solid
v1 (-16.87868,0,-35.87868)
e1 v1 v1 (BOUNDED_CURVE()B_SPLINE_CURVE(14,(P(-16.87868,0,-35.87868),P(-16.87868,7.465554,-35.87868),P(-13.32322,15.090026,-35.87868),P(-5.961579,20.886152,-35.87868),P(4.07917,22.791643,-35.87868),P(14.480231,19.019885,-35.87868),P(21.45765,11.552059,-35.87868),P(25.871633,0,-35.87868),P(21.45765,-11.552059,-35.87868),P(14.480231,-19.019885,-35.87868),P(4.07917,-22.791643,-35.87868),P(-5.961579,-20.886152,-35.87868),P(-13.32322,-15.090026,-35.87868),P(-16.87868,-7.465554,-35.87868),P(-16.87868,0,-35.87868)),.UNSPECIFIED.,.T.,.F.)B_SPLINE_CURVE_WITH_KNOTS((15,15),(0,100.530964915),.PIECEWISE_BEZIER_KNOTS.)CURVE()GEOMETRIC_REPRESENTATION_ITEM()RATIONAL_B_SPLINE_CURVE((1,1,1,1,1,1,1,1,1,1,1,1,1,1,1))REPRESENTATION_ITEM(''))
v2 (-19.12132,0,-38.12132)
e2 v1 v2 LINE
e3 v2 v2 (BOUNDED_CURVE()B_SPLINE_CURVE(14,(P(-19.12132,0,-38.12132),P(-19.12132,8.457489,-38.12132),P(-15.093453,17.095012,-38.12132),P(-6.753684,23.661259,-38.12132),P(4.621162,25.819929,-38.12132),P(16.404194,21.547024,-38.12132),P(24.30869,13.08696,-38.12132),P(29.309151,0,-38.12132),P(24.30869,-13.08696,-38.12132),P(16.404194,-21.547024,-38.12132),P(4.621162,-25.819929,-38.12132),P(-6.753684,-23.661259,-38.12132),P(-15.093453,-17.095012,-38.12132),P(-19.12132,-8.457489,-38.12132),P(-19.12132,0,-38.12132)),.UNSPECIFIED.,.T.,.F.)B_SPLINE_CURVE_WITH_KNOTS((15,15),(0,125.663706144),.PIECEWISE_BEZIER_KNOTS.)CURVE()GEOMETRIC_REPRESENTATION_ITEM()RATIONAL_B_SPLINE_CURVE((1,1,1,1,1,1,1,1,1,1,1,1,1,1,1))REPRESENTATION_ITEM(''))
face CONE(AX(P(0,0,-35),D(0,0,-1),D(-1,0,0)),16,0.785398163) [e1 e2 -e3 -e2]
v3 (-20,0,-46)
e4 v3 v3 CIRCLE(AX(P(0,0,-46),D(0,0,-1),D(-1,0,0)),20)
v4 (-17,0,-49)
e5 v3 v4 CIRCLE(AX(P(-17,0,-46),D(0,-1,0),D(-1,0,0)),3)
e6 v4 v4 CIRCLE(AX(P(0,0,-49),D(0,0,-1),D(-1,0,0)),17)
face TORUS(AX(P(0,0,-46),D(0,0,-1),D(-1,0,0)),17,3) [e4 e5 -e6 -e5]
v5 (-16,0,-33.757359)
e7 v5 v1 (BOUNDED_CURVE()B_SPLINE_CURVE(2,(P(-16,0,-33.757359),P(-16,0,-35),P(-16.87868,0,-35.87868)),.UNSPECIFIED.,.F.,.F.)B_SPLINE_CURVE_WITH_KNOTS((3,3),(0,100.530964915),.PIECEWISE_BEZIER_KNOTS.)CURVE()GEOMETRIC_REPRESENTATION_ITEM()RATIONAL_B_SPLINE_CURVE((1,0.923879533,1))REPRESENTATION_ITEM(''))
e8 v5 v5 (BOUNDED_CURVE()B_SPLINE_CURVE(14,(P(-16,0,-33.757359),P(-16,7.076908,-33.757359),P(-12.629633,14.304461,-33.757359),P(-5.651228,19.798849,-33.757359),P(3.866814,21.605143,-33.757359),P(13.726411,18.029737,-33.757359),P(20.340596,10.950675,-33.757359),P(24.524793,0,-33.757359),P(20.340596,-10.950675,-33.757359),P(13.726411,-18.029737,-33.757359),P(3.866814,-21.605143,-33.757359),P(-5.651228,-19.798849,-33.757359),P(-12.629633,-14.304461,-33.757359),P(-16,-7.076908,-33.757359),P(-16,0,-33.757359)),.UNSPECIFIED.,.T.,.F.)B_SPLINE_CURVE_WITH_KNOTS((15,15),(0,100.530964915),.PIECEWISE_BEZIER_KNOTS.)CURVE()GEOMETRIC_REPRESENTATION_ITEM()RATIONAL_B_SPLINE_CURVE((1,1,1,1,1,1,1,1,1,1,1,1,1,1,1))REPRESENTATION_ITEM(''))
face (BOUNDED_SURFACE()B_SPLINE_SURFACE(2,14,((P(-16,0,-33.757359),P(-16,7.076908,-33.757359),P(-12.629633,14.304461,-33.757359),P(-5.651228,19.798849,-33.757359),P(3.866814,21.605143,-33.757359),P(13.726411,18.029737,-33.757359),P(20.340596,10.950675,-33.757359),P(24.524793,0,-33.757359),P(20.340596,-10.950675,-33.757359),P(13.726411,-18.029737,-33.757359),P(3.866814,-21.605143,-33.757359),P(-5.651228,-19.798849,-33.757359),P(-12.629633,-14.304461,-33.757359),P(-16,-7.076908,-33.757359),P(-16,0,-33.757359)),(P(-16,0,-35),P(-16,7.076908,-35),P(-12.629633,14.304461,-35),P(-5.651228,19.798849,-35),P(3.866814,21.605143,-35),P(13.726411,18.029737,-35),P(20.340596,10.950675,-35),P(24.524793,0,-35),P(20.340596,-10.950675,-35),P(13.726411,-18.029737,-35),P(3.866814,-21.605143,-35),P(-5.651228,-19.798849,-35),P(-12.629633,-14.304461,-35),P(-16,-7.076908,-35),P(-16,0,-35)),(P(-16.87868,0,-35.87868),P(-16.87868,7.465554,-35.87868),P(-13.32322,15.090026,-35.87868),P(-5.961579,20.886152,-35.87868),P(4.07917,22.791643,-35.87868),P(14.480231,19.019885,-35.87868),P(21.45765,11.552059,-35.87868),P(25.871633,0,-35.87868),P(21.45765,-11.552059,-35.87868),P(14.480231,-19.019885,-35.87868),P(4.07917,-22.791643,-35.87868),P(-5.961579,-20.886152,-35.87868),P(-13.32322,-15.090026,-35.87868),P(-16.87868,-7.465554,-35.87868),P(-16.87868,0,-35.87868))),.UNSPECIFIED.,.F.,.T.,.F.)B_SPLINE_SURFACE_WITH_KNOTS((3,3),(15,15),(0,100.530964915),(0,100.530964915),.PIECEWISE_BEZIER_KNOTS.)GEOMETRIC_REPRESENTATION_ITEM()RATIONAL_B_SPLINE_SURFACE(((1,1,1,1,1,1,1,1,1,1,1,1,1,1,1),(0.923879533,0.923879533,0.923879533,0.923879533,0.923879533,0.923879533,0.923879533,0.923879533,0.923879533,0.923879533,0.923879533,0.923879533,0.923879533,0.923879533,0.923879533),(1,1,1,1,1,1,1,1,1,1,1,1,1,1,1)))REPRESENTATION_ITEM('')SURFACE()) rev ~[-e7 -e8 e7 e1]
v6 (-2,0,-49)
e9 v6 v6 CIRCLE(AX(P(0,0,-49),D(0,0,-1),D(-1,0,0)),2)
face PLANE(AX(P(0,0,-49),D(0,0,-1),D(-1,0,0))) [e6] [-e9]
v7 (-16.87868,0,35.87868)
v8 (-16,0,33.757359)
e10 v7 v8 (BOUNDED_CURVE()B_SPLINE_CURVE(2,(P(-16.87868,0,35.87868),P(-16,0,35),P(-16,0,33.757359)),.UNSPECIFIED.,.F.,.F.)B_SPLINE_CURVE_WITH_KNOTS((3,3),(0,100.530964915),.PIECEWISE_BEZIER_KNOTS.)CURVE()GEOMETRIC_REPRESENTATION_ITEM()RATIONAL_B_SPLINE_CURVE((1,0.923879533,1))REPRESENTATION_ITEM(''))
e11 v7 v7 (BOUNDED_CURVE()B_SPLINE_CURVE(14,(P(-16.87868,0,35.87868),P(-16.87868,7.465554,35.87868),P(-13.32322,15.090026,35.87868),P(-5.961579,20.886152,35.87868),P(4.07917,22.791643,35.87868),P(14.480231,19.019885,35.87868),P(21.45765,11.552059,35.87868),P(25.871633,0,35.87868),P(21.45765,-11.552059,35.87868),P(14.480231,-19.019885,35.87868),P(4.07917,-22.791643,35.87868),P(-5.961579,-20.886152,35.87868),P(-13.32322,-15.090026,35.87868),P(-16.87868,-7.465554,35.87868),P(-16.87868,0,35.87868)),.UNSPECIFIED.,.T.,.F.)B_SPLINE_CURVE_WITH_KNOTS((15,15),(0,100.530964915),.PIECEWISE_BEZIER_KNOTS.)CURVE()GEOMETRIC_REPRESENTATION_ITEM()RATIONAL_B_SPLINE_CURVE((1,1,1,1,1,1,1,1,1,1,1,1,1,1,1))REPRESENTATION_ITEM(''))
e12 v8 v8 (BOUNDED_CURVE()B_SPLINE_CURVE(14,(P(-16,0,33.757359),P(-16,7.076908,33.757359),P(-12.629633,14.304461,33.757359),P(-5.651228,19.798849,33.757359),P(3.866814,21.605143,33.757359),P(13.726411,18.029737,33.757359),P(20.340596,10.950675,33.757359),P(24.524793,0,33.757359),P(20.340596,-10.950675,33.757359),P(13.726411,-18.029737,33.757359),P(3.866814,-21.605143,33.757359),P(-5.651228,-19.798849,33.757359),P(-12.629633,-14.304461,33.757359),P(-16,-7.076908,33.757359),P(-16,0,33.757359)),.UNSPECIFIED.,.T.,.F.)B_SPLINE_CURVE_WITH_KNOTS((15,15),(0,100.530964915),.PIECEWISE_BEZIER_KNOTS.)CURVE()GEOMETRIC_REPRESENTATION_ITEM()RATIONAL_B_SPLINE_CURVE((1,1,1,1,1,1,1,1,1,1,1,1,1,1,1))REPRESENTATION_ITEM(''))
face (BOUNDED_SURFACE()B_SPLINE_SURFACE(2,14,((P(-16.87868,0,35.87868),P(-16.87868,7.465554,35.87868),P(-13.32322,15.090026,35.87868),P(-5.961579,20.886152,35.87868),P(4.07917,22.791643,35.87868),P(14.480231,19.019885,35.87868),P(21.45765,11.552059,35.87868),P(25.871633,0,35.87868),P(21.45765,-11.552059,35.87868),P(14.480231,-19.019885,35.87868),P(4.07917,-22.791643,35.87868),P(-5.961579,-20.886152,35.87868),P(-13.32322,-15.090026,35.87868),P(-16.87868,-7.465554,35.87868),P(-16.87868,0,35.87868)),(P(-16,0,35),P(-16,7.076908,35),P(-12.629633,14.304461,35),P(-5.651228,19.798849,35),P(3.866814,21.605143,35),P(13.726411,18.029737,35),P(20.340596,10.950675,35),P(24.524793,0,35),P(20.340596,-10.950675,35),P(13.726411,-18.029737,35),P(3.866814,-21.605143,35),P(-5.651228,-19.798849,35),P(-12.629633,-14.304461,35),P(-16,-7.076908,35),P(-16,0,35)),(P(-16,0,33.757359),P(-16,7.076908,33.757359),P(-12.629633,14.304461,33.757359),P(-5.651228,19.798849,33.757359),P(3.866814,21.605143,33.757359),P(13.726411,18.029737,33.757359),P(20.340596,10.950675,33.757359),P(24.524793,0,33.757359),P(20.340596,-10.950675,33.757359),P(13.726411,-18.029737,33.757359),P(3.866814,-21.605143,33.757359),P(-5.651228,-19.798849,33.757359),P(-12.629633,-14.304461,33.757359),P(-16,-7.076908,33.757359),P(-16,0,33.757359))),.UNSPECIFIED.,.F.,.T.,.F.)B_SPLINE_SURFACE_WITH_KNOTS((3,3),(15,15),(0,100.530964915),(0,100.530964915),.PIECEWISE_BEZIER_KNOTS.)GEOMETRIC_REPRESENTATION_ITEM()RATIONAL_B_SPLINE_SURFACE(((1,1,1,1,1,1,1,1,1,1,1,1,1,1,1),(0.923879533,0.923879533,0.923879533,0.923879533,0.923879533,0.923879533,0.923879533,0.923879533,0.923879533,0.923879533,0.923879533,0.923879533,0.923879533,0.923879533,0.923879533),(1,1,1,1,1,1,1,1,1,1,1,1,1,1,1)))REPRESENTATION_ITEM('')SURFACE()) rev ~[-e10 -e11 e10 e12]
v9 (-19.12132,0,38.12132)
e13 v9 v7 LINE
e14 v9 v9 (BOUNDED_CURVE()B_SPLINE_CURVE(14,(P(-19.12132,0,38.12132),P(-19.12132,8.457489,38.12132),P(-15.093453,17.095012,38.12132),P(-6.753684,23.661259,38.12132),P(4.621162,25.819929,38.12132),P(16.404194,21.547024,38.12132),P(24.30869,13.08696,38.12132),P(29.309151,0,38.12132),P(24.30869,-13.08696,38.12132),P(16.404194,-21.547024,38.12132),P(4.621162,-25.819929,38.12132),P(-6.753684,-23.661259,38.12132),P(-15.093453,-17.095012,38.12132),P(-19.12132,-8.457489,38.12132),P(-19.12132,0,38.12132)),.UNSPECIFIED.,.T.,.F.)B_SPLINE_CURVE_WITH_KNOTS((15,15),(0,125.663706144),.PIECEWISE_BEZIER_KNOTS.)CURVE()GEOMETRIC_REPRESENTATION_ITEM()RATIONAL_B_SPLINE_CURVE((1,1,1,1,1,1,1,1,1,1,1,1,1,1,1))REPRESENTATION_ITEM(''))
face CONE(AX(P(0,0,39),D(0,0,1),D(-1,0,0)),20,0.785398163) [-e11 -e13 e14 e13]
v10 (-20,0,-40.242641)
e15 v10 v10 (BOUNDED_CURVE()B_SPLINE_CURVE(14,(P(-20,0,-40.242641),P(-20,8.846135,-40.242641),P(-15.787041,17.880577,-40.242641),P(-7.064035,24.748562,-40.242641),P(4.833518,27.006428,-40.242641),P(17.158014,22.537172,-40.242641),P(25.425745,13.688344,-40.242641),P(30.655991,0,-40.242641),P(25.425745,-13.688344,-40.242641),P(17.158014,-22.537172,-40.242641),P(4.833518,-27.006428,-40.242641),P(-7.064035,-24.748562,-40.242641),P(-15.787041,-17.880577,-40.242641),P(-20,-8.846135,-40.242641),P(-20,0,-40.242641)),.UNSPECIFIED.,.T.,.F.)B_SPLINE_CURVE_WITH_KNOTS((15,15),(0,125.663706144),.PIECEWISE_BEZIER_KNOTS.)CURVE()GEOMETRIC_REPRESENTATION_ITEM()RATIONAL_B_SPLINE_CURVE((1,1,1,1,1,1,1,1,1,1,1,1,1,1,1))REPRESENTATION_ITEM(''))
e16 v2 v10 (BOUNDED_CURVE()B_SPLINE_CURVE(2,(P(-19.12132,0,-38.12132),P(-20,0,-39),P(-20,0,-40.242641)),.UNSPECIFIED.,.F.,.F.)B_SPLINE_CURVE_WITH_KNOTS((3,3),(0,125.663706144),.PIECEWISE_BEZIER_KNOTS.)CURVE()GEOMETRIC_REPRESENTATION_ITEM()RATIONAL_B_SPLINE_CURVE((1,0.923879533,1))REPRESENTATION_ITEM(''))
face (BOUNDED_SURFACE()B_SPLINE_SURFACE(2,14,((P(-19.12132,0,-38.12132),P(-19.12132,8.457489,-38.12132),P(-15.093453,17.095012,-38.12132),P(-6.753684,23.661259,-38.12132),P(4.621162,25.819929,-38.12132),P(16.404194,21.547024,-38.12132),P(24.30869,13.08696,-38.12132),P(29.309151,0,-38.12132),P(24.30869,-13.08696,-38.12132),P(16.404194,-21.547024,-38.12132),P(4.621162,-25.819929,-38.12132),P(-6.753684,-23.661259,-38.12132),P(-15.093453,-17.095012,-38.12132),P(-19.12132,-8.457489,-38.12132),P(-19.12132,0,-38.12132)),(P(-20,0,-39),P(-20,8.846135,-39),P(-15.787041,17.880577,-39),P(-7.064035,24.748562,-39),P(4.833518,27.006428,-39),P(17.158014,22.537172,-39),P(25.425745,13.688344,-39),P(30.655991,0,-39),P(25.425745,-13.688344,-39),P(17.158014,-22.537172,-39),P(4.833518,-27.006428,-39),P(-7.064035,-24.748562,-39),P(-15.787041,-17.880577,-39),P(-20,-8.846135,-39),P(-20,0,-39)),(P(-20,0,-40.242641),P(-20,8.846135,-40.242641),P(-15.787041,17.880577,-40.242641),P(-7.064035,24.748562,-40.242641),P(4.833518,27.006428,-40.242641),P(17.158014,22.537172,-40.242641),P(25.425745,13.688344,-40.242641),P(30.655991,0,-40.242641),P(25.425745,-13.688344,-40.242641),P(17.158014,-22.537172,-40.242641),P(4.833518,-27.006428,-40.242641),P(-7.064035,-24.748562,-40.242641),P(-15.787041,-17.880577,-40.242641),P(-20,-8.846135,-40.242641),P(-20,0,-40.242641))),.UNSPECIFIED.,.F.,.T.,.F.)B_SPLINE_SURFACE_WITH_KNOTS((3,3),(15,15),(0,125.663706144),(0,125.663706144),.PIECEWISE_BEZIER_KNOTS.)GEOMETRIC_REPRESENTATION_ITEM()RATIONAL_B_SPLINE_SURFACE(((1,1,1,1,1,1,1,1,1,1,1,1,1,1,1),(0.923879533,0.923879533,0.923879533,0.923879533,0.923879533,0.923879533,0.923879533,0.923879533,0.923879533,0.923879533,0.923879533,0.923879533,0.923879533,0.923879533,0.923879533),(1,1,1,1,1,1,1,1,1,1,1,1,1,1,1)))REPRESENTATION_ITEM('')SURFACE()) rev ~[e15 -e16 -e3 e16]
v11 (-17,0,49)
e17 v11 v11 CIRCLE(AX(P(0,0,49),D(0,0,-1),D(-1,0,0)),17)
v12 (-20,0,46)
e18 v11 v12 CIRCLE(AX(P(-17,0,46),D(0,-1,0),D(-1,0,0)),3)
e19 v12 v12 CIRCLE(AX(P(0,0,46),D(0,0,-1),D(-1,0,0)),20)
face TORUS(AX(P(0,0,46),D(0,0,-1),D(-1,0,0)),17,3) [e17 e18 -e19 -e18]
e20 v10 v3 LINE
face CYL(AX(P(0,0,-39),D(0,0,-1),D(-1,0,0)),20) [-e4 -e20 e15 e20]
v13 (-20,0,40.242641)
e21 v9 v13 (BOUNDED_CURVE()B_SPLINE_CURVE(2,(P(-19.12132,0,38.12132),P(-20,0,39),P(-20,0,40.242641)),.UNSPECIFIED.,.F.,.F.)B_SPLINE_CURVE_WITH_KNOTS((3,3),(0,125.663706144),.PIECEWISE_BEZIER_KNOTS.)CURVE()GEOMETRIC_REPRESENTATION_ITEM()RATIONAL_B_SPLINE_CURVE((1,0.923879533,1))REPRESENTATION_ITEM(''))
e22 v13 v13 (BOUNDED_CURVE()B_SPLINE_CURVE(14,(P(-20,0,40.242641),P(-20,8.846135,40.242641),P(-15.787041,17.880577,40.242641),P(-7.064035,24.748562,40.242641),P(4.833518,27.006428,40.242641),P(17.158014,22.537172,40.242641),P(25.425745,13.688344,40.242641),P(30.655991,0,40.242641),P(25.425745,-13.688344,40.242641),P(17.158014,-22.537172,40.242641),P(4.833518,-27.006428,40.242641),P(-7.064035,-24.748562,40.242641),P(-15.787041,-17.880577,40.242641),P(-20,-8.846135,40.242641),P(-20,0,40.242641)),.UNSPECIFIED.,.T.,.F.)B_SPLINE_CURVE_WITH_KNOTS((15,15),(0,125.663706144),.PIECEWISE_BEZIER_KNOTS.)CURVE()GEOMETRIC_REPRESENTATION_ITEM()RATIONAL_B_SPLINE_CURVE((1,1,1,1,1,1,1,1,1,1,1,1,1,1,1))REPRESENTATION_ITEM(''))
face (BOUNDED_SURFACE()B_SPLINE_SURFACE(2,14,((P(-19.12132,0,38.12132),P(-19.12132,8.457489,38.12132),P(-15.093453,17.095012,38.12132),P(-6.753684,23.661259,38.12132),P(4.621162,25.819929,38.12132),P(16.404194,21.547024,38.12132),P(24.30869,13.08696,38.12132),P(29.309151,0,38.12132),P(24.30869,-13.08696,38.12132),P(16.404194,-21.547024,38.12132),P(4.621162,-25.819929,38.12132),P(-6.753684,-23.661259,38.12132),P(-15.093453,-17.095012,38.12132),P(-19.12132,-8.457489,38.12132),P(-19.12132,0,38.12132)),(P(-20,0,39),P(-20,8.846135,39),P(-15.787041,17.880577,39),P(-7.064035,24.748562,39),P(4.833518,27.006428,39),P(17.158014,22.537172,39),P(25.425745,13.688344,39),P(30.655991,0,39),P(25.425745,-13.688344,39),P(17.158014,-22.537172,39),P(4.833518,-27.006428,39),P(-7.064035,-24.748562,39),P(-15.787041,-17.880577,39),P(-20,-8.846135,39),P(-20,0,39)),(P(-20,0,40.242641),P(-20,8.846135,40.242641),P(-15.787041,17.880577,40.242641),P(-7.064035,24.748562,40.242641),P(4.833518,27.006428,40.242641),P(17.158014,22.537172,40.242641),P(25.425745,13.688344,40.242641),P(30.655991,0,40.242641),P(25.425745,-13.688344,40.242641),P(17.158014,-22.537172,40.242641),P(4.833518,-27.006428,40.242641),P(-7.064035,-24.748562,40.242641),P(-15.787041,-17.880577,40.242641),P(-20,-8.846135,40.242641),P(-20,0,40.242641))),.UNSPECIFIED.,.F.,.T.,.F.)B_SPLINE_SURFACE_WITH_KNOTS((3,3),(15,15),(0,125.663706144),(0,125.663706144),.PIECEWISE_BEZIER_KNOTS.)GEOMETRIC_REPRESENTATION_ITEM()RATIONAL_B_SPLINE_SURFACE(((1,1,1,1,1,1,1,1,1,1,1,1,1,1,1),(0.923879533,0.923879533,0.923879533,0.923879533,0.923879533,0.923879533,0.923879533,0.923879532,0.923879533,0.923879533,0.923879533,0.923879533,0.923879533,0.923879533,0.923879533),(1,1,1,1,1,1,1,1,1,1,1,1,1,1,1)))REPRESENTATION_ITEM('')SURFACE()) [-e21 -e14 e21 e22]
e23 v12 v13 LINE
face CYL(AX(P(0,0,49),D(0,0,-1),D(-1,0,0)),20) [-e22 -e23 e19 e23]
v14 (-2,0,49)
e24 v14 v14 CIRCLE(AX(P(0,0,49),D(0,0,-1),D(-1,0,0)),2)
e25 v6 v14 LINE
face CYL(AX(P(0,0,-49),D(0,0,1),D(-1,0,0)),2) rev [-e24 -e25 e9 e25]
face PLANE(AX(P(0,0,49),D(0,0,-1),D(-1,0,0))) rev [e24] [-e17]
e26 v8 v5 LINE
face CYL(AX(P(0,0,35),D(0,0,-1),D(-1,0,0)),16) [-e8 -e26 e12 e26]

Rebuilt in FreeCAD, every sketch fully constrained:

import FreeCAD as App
import Part
import Sketcher
Q = App.Units.Quantity


def edges_at(feature, points):
    """Names of the edges that pass closest to the given points."""
    edges = feature.Shape.Edges
    near = lambda p: min(range(len(edges)), key=lambda i: edges[i].distToShape(Part.Vertex(*p))[0])
    return sorted({f"Edge{near(p) + 1}" for p in points})


def add_polygon(sketch, points):
    """Adds a closed chain of lines whose ends are joined by coincident constraints."""
    first, n = sketch.GeometryCount, len(points)
    for a, b in zip(points, points[1:] + points[:1]):
        sketch.addGeometry(Part.LineSegment(App.Vector(*a, 0), App.Vector(*b, 0)), False)
    for i in range(n):
        sketch.addConstraint(Sketcher.Constraint("Coincident", first + i, 2, first + (i + 1) % n, 1))

doc = App.newDocument("Part")
body = doc.addObject("PartDesign::Body", "Body")

# Sketch on XZ plane
sketch1 = body.newObject("Sketcher::SketchObject", "Sketch")
sketch1.AttachmentSupport = (doc.getObject("XZ_Plane"), [""])
sketch1.MapMode = "FlatFace"
add_polygon(sketch1, [(-20, 39), (-16, 35), (-16, -35), (-20, -39), (-20, -49), (-2, -49), (-2, 49), (-20, 49)])  # lines 0-7
sketch1.addConstraint(Sketcher.Constraint("Vertical", 1))
sketch1.addConstraint(Sketcher.Constraint("Vertical", 3))
sketch1.addConstraint(Sketcher.Constraint("Horizontal", 4))
sketch1.addConstraint(Sketcher.Constraint("Vertical", 5))
sketch1.addConstraint(Sketcher.Constraint("Horizontal", 6))
sketch1.addConstraint(Sketcher.Constraint("Vertical", 7))
sketch1.addConstraint(Sketcher.Constraint("Symmetric", 3, 2, 6, 2, -1))
sketch1.addConstraint(Sketcher.Constraint("Perpendicular", 0, 2))
sketch1.addConstraint(Sketcher.Constraint("Equal", 3, 7))
sketch1.addConstraint(Sketcher.Constraint("Equal", 0, 2))
sketch1.addConstraint(Sketcher.Constraint("DistanceX", 4, 1, 4, 2, Q("18 mm")))
sketch1.addConstraint(Sketcher.Constraint("DistanceY", 1, 2, 1, 1, Q("70 mm")))
sketch1.addConstraint(Sketcher.Constraint("DistanceY", 3, 2, 3, 1, Q("10 mm")))
sketch1.addConstraint(Sketcher.Constraint("DistanceY", 5, 1, 5, 2, Q("98 mm")))
sketch1.addConstraint(Sketcher.Constraint("DistanceX", 0, 2, -1, 1, Q("16 mm")))
revolution = body.newObject("PartDesign::Revolution", "Revolution")
revolution.Profile = sketch1
revolution.ReferenceAxis = (sketch1, ["V_Axis"])
revolution.Angle = 360
doc.recompute()

fillet = body.newObject("PartDesign::Fillet", "Fillet")
fillet.Base = (revolution, edges_at(revolution, [
    (16, 0, 35),
    (16, 0, -35),
    (20, 0, -39),
    (20, 0, -49),
    (20, 0, 39),
    (20, 0, 49),
]))
fillet.Radius = 3

doc.recompute()
